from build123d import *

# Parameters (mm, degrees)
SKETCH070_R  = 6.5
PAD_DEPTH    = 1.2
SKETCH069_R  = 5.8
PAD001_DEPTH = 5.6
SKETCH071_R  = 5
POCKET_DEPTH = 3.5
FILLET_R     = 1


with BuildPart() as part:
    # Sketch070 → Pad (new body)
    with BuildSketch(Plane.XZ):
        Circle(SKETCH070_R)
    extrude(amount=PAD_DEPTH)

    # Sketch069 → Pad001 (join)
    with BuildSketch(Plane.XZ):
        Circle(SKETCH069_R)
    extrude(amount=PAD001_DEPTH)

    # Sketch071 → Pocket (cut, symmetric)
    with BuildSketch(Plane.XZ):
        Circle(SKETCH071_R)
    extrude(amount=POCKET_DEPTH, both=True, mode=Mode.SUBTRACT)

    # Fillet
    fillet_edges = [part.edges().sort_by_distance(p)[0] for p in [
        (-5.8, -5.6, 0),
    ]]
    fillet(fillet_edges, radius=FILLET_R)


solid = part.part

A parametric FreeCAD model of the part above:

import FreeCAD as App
import Part
import Sketcher
Q = App.Units.Quantity


def edges_at(feature, points):
    """Names of the edges that pass closest to the given points."""
    edges = feature.Shape.Edges
    near = lambda p: min(range(len(edges)), key=lambda i: edges[i].distToShape(Part.Vertex(*p))[0])
    return sorted({f"Edge{near(p) + 1}" for p in points})

doc = App.newDocument("Part")
params = doc.addObject("Spreadsheet::Sheet", "Params")
for row, (alias, value) in enumerate([
    ("sketch1_diameter", "13 mm"),
    ("pad1_length", "1.2 mm"),
    ("sketch2_diameter", "11.6 mm"),
    ("pad2_length", "5.6 mm"),
    ("sketch3_diameter", "10 mm"),
    ("pocket1_length", "7 mm"),
    ("fillet_radius", "1 mm"),
], start=1):
    params.set(f"A{row}", alias)
    params.set(f"B{row}", "=" + value)
    params.setAlias(f"B{row}", alias)

body = doc.addObject("PartDesign::Body", "Body")

sketch1 = doc.addObject("Sketcher::SketchObject", "Sketch")
body.addObject(sketch1)
sketch1.AttachmentSupport = (doc.XZ_Plane, [""])
sketch1.MapMode = "FlatFace"
sketch1.addGeometry(Part.Circle(App.Vector(0, 0, 0), App.Vector(0, 0, 1), 6), False)
sketch1.addConstraint([
    Sketcher.Constraint("Coincident", 0, 3, -1, 1),
    Sketcher.Constraint("Diameter", 0, Q("13 mm")),
])
sketch1.setExpression("Constraints[1]", "Params.sketch1_diameter")
pad1 = doc.addObject("PartDesign::Pad", "Pad")
body.addObject(pad1)
pad1.Profile = sketch1
pad1.setExpression("Length", "Params.pad1_length")

sketch2 = doc.addObject("Sketcher::SketchObject", "Sketch001")
body.addObject(sketch2)
sketch2.AttachmentSupport = (doc.XZ_Plane, [""])
sketch2.MapMode = "FlatFace"
sketch2.addGeometry(Part.Circle(App.Vector(0, 0, 0), App.Vector(0, 0, 1), 6), False)
sketch2.addConstraint([
    Sketcher.Constraint("Coincident", 0, 3, -1, 1),
    Sketcher.Constraint("Diameter", 0, Q("11.6 mm")),
])
sketch2.setExpression("Constraints[1]", "Params.sketch2_diameter")
pad2 = doc.addObject("PartDesign::Pad", "Pad001")
body.addObject(pad2)
pad2.Profile = sketch2
pad2.setExpression("Length", "Params.pad2_length")

sketch3 = doc.addObject("Sketcher::SketchObject", "Sketch002")
body.addObject(sketch3)
sketch3.AttachmentSupport = (doc.XZ_Plane, [""])
sketch3.MapMode = "FlatFace"
sketch3.addGeometry(Part.Circle(App.Vector(0, 0, 0), App.Vector(0, 0, 1), 5), False)
sketch3.addConstraint([
    Sketcher.Constraint("Coincident", 0, 3, -1, 1),
    Sketcher.Constraint("Diameter", 0, Q("10 mm")),
])
sketch3.setExpression("Constraints[1]", "Params.sketch3_diameter")
pocket1 = doc.addObject("PartDesign::Pocket", "Pocket")
body.addObject(pocket1)
pocket1.Profile = sketch3
pocket1.setExpression("Length", "Params.pocket1_length")
pocket1.Midplane = True
doc.recompute()

fillet = doc.addObject("PartDesign::Fillet", "Fillet")
body.addObject(fillet)
fillet.Base = (pocket1, edges_at(pocket1, [(-5.8, -5.6, 0)]))
fillet.setExpression("Radius", "Params.fillet_radius")

doc.recompute()
